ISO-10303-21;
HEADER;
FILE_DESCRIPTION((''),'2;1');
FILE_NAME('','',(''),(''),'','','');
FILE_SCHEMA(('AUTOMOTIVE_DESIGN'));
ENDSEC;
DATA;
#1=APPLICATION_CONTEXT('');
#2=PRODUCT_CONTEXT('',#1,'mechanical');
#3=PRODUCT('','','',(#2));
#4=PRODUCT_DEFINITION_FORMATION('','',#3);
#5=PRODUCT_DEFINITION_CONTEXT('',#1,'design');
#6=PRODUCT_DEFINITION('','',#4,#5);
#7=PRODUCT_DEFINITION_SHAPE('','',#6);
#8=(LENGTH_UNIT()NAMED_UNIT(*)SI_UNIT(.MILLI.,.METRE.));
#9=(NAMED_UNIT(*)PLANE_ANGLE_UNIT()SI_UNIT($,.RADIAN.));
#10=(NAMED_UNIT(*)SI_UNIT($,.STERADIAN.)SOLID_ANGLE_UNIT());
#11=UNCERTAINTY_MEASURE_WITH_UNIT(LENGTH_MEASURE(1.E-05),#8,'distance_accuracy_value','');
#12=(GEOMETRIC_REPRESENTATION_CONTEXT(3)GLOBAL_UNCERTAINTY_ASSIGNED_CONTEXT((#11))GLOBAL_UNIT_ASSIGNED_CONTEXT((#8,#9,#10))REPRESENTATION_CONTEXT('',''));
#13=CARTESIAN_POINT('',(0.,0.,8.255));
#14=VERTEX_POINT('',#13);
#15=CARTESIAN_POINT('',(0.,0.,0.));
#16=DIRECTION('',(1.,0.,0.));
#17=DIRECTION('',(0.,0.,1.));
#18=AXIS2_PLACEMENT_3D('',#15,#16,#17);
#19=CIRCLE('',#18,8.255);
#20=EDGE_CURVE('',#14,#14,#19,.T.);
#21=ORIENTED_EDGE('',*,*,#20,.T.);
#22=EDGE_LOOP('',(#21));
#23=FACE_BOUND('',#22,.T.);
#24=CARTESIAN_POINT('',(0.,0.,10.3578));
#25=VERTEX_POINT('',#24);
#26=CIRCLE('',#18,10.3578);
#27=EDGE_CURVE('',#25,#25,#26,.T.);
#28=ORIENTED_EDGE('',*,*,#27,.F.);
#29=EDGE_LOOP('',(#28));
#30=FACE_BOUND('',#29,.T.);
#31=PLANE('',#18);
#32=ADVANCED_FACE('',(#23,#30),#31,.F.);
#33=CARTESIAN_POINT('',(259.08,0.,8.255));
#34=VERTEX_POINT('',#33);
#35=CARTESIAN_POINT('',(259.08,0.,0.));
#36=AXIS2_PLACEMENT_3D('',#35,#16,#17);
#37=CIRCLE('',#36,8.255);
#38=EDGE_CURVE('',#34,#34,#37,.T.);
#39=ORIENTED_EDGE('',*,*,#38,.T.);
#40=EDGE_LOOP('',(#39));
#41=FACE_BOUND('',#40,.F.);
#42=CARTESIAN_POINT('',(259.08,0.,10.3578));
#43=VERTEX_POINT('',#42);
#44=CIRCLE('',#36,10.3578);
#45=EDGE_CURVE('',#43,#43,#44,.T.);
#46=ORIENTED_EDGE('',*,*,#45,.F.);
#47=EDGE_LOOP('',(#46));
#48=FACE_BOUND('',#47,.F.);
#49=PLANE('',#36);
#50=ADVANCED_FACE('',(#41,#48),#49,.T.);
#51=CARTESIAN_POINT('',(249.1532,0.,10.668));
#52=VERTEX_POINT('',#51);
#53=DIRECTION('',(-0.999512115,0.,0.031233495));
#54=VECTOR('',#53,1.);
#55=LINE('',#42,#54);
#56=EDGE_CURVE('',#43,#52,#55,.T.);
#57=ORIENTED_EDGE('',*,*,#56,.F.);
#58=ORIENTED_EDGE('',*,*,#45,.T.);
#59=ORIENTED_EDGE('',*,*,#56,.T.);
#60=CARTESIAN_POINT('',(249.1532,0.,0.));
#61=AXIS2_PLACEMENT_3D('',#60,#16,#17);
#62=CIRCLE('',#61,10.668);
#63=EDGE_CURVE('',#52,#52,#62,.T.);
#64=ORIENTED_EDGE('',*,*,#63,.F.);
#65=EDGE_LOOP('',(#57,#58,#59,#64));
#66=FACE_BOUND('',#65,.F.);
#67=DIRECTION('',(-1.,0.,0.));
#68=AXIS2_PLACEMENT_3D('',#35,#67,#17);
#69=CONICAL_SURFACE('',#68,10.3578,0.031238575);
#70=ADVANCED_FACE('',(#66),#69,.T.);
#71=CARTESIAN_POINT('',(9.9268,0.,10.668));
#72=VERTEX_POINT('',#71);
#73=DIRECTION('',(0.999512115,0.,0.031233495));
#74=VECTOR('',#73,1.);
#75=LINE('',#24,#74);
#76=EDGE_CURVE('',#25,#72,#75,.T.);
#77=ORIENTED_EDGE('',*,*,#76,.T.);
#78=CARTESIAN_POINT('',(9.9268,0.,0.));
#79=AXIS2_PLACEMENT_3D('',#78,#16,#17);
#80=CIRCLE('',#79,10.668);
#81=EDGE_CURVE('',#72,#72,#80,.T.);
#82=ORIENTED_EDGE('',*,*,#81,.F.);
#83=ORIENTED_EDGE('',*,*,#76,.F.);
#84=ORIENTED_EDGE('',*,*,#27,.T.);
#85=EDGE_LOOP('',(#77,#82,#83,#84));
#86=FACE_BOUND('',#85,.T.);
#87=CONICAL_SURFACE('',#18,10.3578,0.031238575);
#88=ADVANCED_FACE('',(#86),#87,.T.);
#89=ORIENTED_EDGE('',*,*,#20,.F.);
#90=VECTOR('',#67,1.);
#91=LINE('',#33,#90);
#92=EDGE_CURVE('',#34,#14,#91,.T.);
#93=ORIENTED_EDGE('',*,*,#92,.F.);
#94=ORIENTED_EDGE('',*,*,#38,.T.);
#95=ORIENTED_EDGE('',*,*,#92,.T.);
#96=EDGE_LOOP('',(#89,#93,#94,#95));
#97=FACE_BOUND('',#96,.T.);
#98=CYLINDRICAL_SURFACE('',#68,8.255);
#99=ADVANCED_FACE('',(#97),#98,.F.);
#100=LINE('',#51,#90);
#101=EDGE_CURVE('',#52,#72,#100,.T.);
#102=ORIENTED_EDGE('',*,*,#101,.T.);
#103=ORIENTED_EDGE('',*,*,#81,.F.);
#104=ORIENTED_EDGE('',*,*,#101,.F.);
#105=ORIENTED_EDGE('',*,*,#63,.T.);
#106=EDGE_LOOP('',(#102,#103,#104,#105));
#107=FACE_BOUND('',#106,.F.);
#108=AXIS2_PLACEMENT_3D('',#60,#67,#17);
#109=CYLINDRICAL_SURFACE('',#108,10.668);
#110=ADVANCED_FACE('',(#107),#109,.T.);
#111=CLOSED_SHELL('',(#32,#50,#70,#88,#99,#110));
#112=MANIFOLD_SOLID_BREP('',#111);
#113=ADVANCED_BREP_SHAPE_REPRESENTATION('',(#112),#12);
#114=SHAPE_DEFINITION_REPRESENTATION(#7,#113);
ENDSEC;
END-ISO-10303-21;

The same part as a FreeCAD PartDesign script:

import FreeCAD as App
import Part
import Sketcher
Q = App.Units.Quantity

doc = App.newDocument("Part")
body = doc.addObject("PartDesign::Body", "Body")

# Sketch on XZ plane
sketch1 = body.newObject("Sketcher::SketchObject", "Sketch")
sketch1.AttachmentSupport = (doc.getObject("XZ_Plane"), [""])
sketch1.MapMode = "FlatFace"
sketch1.addGeometry([
    Part.LineSegment(App.Vector(259.1, 10.4, 0), App.Vector(259.1, 8.3, 0)),  # 0
    Part.LineSegment(App.Vector(259.1, 8.3, 0), App.Vector(0, 8.3, 0)),  # 1
    Part.LineSegment(App.Vector(0, 8.3, 0), App.Vector(0, 10.4, 0)),  # 2
    Part.LineSegment(App.Vector(0, 10.4, 0), App.Vector(9.9, 10.7, 0)),  # 3
    Part.LineSegment(App.Vector(9.9, 10.7, 0), App.Vector(249.2, 10.7, 0)),  # 4
    Part.LineSegment(App.Vector(249.2, 10.7, 0), App.Vector(259.1, 10.4, 0)),  # 5
], False)
sketch1.addConstraint([
    Sketcher.Constraint("Coincident", 0, 2, 1, 1),
    Sketcher.Constraint("Coincident", 1, 2, 2, 1),
    Sketcher.Constraint("Coincident", 2, 2, 3, 1),
    Sketcher.Constraint("Coincident", 3, 2, 4, 1),
    Sketcher.Constraint("Coincident", 4, 2, 5, 1),
    Sketcher.Constraint("Coincident", 5, 2, 0, 1),
    Sketcher.Constraint("Vertical", 0),
    Sketcher.Constraint("Horizontal", 1),
    Sketcher.Constraint("Vertical", 2),
    Sketcher.Constraint("Horizontal", 4),
    Sketcher.Constraint("PointOnObject", 1, 2, -2),
    Sketcher.Constraint("Horizontal", 2, 2, 5, 2),
    Sketcher.Constraint("Equal", 3, 5),
    Sketcher.Constraint("DistanceX", 1, 2, 1, 1, Q("10.2 in")),
    Sketcher.Constraint("Angle", 3, Q("1.7898 deg")),
    Sketcher.Constraint("DistanceY", -1, 1, 3, 2, Q("0.42 in")),
    Sketcher.Constraint("Distance", 3, Q("0.391 in")),
    Sketcher.Constraint("DistanceY", -1, 1, 0, 2, Q("0.325 in")),
])
revolution = body.newObject("PartDesign::Revolution", "Revolution")
revolution.Profile = sketch1
revolution.ReferenceAxis = (sketch1, ["H_Axis"])
revolution.Angle = 360

doc.recompute()
